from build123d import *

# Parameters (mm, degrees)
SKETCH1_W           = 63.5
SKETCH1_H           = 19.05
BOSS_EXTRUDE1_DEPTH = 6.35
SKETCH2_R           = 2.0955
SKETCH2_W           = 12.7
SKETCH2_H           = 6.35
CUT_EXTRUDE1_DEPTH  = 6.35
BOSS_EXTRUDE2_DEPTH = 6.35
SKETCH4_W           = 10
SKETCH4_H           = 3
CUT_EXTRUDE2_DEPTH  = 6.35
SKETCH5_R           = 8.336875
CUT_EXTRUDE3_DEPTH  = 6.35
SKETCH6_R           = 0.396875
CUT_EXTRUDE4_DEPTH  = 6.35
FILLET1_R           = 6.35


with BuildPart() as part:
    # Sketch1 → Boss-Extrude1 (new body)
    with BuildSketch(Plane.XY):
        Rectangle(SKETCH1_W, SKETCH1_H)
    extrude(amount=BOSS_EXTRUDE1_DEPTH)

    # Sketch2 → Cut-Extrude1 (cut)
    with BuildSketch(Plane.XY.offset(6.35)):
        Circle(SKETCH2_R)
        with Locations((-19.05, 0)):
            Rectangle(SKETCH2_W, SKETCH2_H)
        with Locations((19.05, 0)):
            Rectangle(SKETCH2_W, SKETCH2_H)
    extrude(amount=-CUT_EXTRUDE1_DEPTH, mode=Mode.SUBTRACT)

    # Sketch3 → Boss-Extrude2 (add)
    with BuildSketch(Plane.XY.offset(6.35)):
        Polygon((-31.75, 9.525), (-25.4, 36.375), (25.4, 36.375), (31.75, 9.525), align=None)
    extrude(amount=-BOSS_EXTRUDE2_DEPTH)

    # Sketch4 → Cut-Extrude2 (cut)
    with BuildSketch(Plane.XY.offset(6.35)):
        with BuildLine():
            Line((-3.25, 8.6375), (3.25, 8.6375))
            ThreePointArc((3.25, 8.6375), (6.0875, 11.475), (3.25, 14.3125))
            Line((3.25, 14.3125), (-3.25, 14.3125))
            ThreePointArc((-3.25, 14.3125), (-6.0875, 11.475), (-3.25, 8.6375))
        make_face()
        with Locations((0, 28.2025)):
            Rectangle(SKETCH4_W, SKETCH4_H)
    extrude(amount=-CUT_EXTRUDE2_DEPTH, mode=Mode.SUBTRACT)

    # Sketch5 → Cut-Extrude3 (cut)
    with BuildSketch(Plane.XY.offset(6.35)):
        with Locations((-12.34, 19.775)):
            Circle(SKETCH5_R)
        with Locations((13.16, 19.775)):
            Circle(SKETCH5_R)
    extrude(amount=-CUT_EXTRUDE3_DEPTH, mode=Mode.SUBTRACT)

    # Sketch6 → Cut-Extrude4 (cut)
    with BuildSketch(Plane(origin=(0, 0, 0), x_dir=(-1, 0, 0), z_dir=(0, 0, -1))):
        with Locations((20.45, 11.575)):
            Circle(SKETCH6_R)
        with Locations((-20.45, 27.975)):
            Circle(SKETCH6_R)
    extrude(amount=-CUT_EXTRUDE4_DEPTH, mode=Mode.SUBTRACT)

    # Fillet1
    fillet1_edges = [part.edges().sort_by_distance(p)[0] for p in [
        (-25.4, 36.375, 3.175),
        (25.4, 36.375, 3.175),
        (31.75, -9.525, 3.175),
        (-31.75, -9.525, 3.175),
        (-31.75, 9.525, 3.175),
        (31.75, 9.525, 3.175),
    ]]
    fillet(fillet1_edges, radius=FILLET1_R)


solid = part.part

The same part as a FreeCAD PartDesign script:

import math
import FreeCAD as App
import Part
import Sketcher

V = App.Vector
Q = App.Units.Quantity


def edges_at(feature, points):
    """Names of the edges that pass closest to the given points."""
    edges = feature.Shape.Edges
    near = lambda p: min(range(len(edges)), key=lambda i: edges[i].distToShape(Part.Vertex(*p))[0])
    return sorted({f"Edge{near(p) + 1}" for p in points})


def add_polygon(sketch, points):
    """Adds a closed chain of lines whose ends are joined by coincident constraints."""
    first, n = sketch.GeometryCount, len(points)
    for a, b in zip(points, points[1:] + points[:1]):
        sketch.addGeometry(Part.LineSegment(App.Vector(*a, 0), App.Vector(*b, 0)), False)
    for i in range(n):
        sketch.addConstraint(Sketcher.Constraint("Coincident", first + i, 2, first + (i + 1) % n, 1))

doc = App.newDocument("Part")
body = doc.addObject("PartDesign::Body", "Body")

# Sketch on XY plane
sketch1 = body.newObject("Sketcher::SketchObject", "Sketch")
sketch1.AttachmentSupport = (doc.getObject("XY_Plane"), [""])
sketch1.MapMode = "FlatFace"
add_polygon(sketch1, [(-32, 10), (-32, -10), (32, -10), (32, 10)])  # lines 0-3
sketch1.addConstraint([
    Sketcher.Constraint("Vertical", 0),
    Sketcher.Constraint("Horizontal", 1),
    Sketcher.Constraint("Vertical", 2),
    Sketcher.Constraint("Horizontal", 3),
    Sketcher.Constraint("Symmetric", 0, 2, 2, 2, -1, 1),
    Sketcher.Constraint("DistanceX", 1, 1, 1, 2, Q("2.5 in")),
    Sketcher.Constraint("DistanceY", 0, 2, 0, 1, Q("0.75 in")),
])
pad1 = body.newObject("PartDesign::Pad", "Pad")
pad1.Profile = sketch1
pad1.Length = Q("0.25 in")

# Sketch on XY plane
sketch2 = body.newObject("Sketcher::SketchObject", "Sketch001")
sketch2.AttachmentSupport = (doc.getObject("XY_Plane"), [""])
sketch2.MapMode = "FlatFace"
sketch2.AttachmentOffset = App.Placement(V(0, 0, 0.25 * 25.4), App.Rotation())
sketch2.addGeometry(Part.Circle(V(0, 0, 0), V(0, 0, 1), 2.1), False)  # 0
add_polygon(sketch2, [(-25.4, 3.2), (-25.4, -3.2), (-12.7, -3.2), (-12.7, 3.2)])  # lines 1-4
add_polygon(sketch2, [(12.7, 3.2), (12.7, -3.2), (25.4, -3.2), (25.4, 3.2)])  # lines 5-8
sketch2.addConstraint([
    Sketcher.Constraint("Vertical", 1),
    Sketcher.Constraint("Horizontal", 2),
    Sketcher.Constraint("Vertical", 3),
    Sketcher.Constraint("Horizontal", 4),
    Sketcher.Constraint("Vertical", 5),
    Sketcher.Constraint("Horizontal", 6),
    Sketcher.Constraint("Vertical", 7),
    Sketcher.Constraint("Horizontal", 8),
    Sketcher.Constraint("Coincident", 0, 3, -1, 1),
    Sketcher.Constraint("Symmetric", 3, 2, 5, 2, -1, 1),
    Sketcher.Constraint("Symmetric", 1, 2, 7, 2, -1, 1),
    Sketcher.Constraint("Horizontal", 2, 2, 5, 2),
    Sketcher.Constraint("Diameter", 0, Q("0.165 in")),
    Sketcher.Constraint("DistanceX", 2, 1, 2, 2, Q("0.5 in")),
    Sketcher.Constraint("DistanceX", 1, 2, -1, 1, Q("1 in")),
    Sketcher.Constraint("DistanceY", 1, 2, 1, 1, Q("0.25 in")),
])
pocket1 = body.newObject("PartDesign::Pocket", "Pocket")
pocket1.Profile = sketch2
pocket1.Length = Q("0.25 in")

# Sketch on XY plane
sketch3 = body.newObject("Sketcher::SketchObject", "Sketch002")
sketch3.AttachmentSupport = (doc.getObject("XY_Plane"), [""])
sketch3.MapMode = "FlatFace"
sketch3.AttachmentOffset = App.Placement(V(0, 0, 0.25 * 25.4), App.Rotation())
add_polygon(sketch3, [(-25, 36), (-32, 10), (32, 10), (25, 36)])  # lines 0-3
sketch3.addConstraint([
    Sketcher.Constraint("Horizontal", 1),
    Sketcher.Constraint("Horizontal", 3),
    Sketcher.Constraint("Equal", 0, 2),
    Sketcher.Constraint("DistanceX", 3, 2, 3, 1, Q("2 in")),
    Sketcher.Constraint("DistanceX", 1, 1, 1, 2, Q("2.5 in")),
    Sketcher.Constraint("DistanceX", -1, 1, 2, 2, Q("1 in")),
    Sketcher.Constraint("DistanceY", -1, 1, 0, 2, Q("0.375 in")),
    Sketcher.Constraint("DistanceY", -1, 1, 2, 2, 36.375),
])
pad2 = body.newObject("PartDesign::Pad", "Pad001")
pad2.Profile = sketch3
pad2.Length = Q("0.25 in")
pad2.Reversed = True

# Sketch on XY plane
sketch4 = body.newObject("Sketcher::SketchObject", "Sketch003")
sketch4.AttachmentSupport = (doc.getObject("XY_Plane"), [""])
sketch4.MapMode = "FlatFace"
sketch4.AttachmentOffset = App.Placement(V(0, 0, 0.25 * 25.4), App.Rotation())
sketch4.addGeometry(Part.LineSegment(V(-3.2, 8.6, 0), V(3.2, 8.6, 0)), False)  # 0
sketch4.addGeometry(Part.ArcOfCircle(Part.Circle(V(3.2, 11.5, 0), V(0, 0, 1), 2.8), math.radians(-90), math.radians(90)), False)  # 1
sketch4.addGeometry(Part.LineSegment(V(3.2, 14.3, 0), V(-3.2, 14.3, 0)), False)  # 2
sketch4.addGeometry(Part.ArcOfCircle(Part.Circle(V(-3.2, 11.5, 0), V(0, 0, 1), 2.8), math.radians(90), math.radians(270)), False)  # 3
add_polygon(sketch4, [(-5, 29.7), (-5, 26.7), (5, 26.7), (5, 29.7)])  # lines 4-7
sketch4.addConstraint([
    Sketcher.Constraint("Tangent", 0, 2, 1, 1),
    Sketcher.Constraint("Tangent", 1, 2, 2, 1),
    Sketcher.Constraint("Tangent", 2, 2, 3, 1),
    Sketcher.Constraint("Tangent", 3, 2, 0, 1),
    Sketcher.Constraint("Horizontal", 0),
    Sketcher.Constraint("Horizontal", 2),
    Sketcher.Constraint("Vertical", 4),
    Sketcher.Constraint("Horizontal", 5),
    Sketcher.Constraint("Vertical", 6),
    Sketcher.Constraint("Horizontal", 7),
    Sketcher.Constraint("Radius", 1, 2.8375),
    Sketcher.Constraint("DistanceX", 0, 1, 0, 2, 6.5),
    Sketcher.Constraint("DistanceX", 5, 1, 5, 2, 10.0),
    Sketcher.Constraint("DistanceY", 4, 2, 4, 1, 3.0),
    Sketcher.Constraint("DistanceX", -1, 1, 1, 3, 3.25),
    Sketcher.Constraint("DistanceY", -1, 1, 1, 3, 11.475),
    Sketcher.Constraint("DistanceX", 4, 2, -1, 1, 5.0),
    Sketcher.Constraint("DistanceY", -1, 1, 4, 2, 26.7025),
])
pocket2 = body.newObject("PartDesign::Pocket", "Pocket001")
pocket2.Profile = sketch4
pocket2.Length = Q("0.25 in")

# Sketch on XY plane
sketch5 = body.newObject("Sketcher::SketchObject", "Sketch004")
sketch5.AttachmentSupport = (doc.getObject("XY_Plane"), [""])
sketch5.MapMode = "FlatFace"
sketch5.AttachmentOffset = App.Placement(V(0, 0, 0.25 * 25.4), App.Rotation())
sketch5.addGeometry([
    Part.Circle(V(-12, 20, 0), V(0, 0, 1), 8),
    Part.Circle(V(13, 20, 0), V(0, 0, 1), 8),
], False)
sketch5.addConstraint([
    Sketcher.Constraint("Equal", 0, 1),
    Sketcher.Constraint("Horizontal", 0, 3, 1, 3),
    Sketcher.Constraint("Diameter", 0, 16.67375),
    Sketcher.Constraint("DistanceX", 0, 3, -1, 1, 12.34),
    Sketcher.Constraint("DistanceY", -1, 1, 0, 3, 19.775),
    Sketcher.Constraint("DistanceX", -1, 1, 1, 3, 13.16),
])
pocket3 = body.newObject("PartDesign::Pocket", "Pocket002")
pocket3.Profile = sketch5
pocket3.Length = Q("0.25 in")

# Sketch on XY plane
sketch6 = body.newObject("Sketcher::SketchObject", "Sketch005")
sketch6.AttachmentSupport = (doc.getObject("XY_Plane"), [""])
sketch6.MapMode = "FlatFace"
sketch6.addGeometry([
    Part.Circle(V(-20.45, 11.57, 0), V(0, 0, 1), 0.4),
    Part.Circle(V(20.45, 27.98, 0), V(0, 0, 1), 0.4),
], False)
sketch6.addConstraint([
    Sketcher.Constraint("Equal", 0, 1),
    Sketcher.Constraint("Diameter", 0, Q("0.03125 in")),
    Sketcher.Constraint("DistanceX", 0, 3, -1, 1, 20.45),
    Sketcher.Constraint("DistanceY", -1, 1, 0, 3, 11.575),
    Sketcher.Constraint("DistanceX", -1, 1, 1, 3, 20.45),
    Sketcher.Constraint("DistanceY", -1, 1, 1, 3, 27.975),
])
pocket4 = body.newObject("PartDesign::Pocket", "Pocket003")
pocket4.Profile = sketch6
pocket4.Length = Q("0.25 in")
pocket4.Reversed = True
doc.recompute()

fillet = body.newObject("PartDesign::Fillet", "Fillet")
fillet.Base = (pocket4, edges_at(pocket4, [
    (-25.4, 36.375, 3.175),
    (25.4, 36.375, 3.175),
    (31.75, -9.525, 3.175),
    (-31.75, -9.525, 3.175),
    (-31.75, 9.525, 3.175),
    (31.75, 9.525, 3.175),
]))
fillet.Radius = Q("0.25 in")

doc.recompute()
